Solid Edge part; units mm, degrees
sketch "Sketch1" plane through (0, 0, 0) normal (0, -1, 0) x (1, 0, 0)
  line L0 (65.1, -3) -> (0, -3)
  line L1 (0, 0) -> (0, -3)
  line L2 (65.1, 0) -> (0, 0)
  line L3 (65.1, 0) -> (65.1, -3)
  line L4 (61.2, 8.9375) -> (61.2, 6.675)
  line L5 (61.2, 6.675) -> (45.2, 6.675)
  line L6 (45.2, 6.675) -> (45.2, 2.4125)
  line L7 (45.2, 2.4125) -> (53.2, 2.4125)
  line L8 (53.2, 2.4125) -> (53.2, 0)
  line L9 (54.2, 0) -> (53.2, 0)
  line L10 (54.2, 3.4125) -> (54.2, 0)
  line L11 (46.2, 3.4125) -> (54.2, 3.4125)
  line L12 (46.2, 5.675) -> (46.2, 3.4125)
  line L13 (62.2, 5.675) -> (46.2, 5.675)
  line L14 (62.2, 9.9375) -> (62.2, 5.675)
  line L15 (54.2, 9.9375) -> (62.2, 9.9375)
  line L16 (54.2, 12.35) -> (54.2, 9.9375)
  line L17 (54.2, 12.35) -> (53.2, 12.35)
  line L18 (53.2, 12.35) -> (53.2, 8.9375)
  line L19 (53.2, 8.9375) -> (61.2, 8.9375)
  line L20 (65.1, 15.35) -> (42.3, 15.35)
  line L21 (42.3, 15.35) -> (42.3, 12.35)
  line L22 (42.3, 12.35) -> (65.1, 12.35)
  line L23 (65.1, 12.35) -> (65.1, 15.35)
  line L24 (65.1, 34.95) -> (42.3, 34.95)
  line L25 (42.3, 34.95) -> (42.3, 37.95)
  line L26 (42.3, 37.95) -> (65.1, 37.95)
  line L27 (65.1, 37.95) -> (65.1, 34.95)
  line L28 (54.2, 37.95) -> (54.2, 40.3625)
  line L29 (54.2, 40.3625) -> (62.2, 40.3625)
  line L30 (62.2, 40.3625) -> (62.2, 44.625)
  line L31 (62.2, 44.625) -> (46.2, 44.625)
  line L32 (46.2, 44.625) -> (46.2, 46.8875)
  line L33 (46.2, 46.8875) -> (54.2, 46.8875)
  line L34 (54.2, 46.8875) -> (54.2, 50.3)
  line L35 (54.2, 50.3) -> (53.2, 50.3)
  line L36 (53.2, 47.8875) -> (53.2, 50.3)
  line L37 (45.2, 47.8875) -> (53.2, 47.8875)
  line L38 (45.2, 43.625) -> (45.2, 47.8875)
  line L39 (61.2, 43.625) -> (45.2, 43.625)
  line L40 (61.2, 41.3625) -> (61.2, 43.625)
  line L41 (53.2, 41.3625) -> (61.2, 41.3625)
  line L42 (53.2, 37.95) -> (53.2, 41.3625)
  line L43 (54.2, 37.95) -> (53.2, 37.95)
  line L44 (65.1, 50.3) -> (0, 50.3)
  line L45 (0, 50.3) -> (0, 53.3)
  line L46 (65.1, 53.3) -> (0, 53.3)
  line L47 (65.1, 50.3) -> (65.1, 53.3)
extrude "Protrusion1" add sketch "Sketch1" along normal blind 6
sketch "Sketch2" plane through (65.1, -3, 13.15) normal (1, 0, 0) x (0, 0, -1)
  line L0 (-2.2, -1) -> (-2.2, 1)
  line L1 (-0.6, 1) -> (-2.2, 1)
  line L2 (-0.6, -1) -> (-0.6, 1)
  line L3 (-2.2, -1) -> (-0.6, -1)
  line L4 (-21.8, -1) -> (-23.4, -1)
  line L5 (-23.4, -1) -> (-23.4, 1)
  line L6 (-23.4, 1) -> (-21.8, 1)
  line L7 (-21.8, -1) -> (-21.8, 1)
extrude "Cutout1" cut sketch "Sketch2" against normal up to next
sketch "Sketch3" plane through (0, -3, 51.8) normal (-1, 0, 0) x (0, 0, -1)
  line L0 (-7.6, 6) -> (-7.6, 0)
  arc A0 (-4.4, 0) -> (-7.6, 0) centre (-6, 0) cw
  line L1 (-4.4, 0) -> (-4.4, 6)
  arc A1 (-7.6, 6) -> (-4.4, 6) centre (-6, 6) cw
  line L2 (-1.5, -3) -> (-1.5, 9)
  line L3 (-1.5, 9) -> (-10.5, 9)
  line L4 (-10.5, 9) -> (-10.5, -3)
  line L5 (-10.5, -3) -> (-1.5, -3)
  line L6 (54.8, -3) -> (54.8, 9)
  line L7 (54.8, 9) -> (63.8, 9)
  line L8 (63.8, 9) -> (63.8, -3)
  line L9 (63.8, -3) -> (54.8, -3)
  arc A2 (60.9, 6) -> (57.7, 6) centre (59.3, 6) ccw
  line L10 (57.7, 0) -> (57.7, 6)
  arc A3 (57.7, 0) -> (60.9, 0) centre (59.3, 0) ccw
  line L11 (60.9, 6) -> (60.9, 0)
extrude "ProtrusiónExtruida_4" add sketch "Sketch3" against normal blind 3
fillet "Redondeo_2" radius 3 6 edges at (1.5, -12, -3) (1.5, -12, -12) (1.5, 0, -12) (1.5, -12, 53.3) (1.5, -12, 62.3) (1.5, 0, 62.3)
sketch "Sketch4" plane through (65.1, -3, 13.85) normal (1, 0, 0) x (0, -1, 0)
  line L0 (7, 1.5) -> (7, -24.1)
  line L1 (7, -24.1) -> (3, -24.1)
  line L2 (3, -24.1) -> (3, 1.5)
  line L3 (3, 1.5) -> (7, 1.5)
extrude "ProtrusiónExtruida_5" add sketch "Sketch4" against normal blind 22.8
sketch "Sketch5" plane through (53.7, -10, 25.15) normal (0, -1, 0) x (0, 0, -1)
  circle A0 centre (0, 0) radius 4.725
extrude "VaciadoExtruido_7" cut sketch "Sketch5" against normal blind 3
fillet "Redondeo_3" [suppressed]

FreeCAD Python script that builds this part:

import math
import FreeCAD as App
import Part
import Sketcher


def edges_at(feature, points):
    """Names of the edges that pass closest to the given points."""
    edges = feature.Shape.Edges
    near = lambda p: min(range(len(edges)), key=lambda i: edges[i].distToShape(Part.Vertex(*p))[0])
    return sorted({f"Edge{near(p) + 1}" for p in points})

doc = App.newDocument("Part")
params = doc.addObject("Spreadsheet::Sheet", "Params")
for row, (alias, value) in enumerate([
    ("sketch1_width", "8 mm"),
    ("sketch1_height", "3 mm"),
    ("sketch1_width2", "65.1 mm"),
    ("sketch1_width3", "10.9 mm"),
    ("sketch1_width4", "22.8 mm"),
    ("pad1_length", "6 mm"),
    ("sketch2_width", "2 mm"),
    ("sketch2_height", "1.6 mm"),
    ("pocket1_length", "22.8 mm"),
    ("sketch3_radius", "1.6 mm"),
    ("sketch3_width", "12 mm"),
    ("sketch3_width2", "6 mm"),
    ("sketch3_height", "9 mm"),
    ("pad2_length", "3 mm"),
    ("fillet_radius", "3 mm"),
    ("sketch4_width", "4 mm"),
    ("sketch4_height", "25.6 mm"),
    ("pad3_length", "22.8 mm"),
    ("sketch5_diameter", "9.45 mm"),
    ("pocket2_length", "3 mm"),
], start=1):
    params.set(f"A{row}", alias)
    params.set(f"B{row}", "=" + value)
    params.setAlias(f"B{row}", alias)

body = doc.addObject("PartDesign::Body", "Body")
body.AllowCompound = True

# Sketch on XZ plane
sketch1 = body.newObject("Sketcher::SketchObject", "Sketch")
sketch1.AttachmentSupport = (doc.getObject("XZ_Plane"), [""])
sketch1.MapMode = "FlatFace"
sketch1.addGeometry([
    Part.LineSegment(App.Vector(0, -3, 0), App.Vector(65.1, -3, 0)),  # 0
    Part.LineSegment(App.Vector(65.1, -3, 0), App.Vector(65.1, 0, 0)),  # 1
    Part.LineSegment(App.Vector(65.1, 0, 0), App.Vector(54.2, 0, 0)),  # 2
    Part.LineSegment(App.Vector(54.2, 0, 0), App.Vector(54.2, 3.4125, 0)),  # 3
    Part.LineSegment(App.Vector(54.2, 3.4125, 0), App.Vector(46.2, 3.4125, 0)),  # 4
    Part.LineSegment(App.Vector(46.2, 3.4125, 0), App.Vector(46.2, 5.675, 0)),  # 5
    Part.LineSegment(App.Vector(46.2, 5.675, 0), App.Vector(62.2, 5.675, 0)),  # 6
    Part.LineSegment(App.Vector(62.2, 5.675, 0), App.Vector(62.2, 9.9375, 0)),  # 7
    Part.LineSegment(App.Vector(62.2, 9.9375, 0), App.Vector(54.2, 9.9375, 0)),  # 8
    Part.LineSegment(App.Vector(54.2, 9.9375, 0), App.Vector(54.2, 12.35, 0)),  # 9
    Part.LineSegment(App.Vector(54.2, 12.35, 0), App.Vector(65.1, 12.35, 0)),  # 10
    Part.LineSegment(App.Vector(65.1, 12.35, 0), App.Vector(65.1, 15.35, 0)),  # 11
    Part.LineSegment(App.Vector(65.1, 15.35, 0), App.Vector(42.3, 15.35, 0)),  # 12
    Part.LineSegment(App.Vector(42.3, 15.35, 0), App.Vector(42.3, 12.35, 0)),  # 13
    Part.LineSegment(App.Vector(42.3, 12.35, 0), App.Vector(53.2, 12.35, 0)),  # 14
    Part.LineSegment(App.Vector(53.2, 12.35, 0), App.Vector(53.2, 8.9375, 0)),  # 15
    Part.LineSegment(App.Vector(53.2, 8.9375, 0), App.Vector(61.2, 8.9375, 0)),  # 16
    Part.LineSegment(App.Vector(61.2, 8.9375, 0), App.Vector(61.2, 6.675, 0)),  # 17
    Part.LineSegment(App.Vector(61.2, 6.675, 0), App.Vector(45.2, 6.675, 0)),  # 18
    Part.LineSegment(App.Vector(45.2, 6.675, 0), App.Vector(45.2, 2.4125, 0)),  # 19
    Part.LineSegment(App.Vector(45.2, 2.4125, 0), App.Vector(53.2, 2.4125, 0)),  # 20
    Part.LineSegment(App.Vector(53.2, 2.4125, 0), App.Vector(53.2, 0, 0)),  # 21
    Part.LineSegment(App.Vector(53.2, 0, 0), App.Vector(0, 0, 0)),  # 22
    Part.LineSegment(App.Vector(0, 0, 0), App.Vector(0, -3, 0)),  # 23
    Part.LineSegment(App.Vector(42.3, 34.95, 0), App.Vector(65.1, 34.95, 0)),  # 24
    Part.LineSegment(App.Vector(65.1, 34.95, 0), App.Vector(65.1, 37.95, 0)),  # 25
    Part.LineSegment(App.Vector(65.1, 37.95, 0), App.Vector(54.2, 37.95, 0)),  # 26
    Part.LineSegment(App.Vector(54.2, 37.95, 0), App.Vector(54.2, 40.3625, 0)),  # 27
    Part.LineSegment(App.Vector(54.2, 40.3625, 0), App.Vector(62.2, 40.3625, 0)),  # 28
    Part.LineSegment(App.Vector(62.2, 40.3625, 0), App.Vector(62.2, 44.625, 0)),  # 29
    Part.LineSegment(App.Vector(62.2, 44.625, 0), App.Vector(46.2, 44.625, 0)),  # 30
    Part.LineSegment(App.Vector(46.2, 44.625, 0), App.Vector(46.2, 46.8875, 0)),  # 31
    Part.LineSegment(App.Vector(46.2, 46.8875, 0), App.Vector(54.2, 46.8875, 0)),  # 32
    Part.LineSegment(App.Vector(54.2, 46.8875, 0), App.Vector(54.2, 50.3, 0)),  # 33
    Part.LineSegment(App.Vector(54.2, 50.3, 0), App.Vector(65.1, 50.3, 0)),  # 34
    Part.LineSegment(App.Vector(65.1, 50.3, 0), App.Vector(65.1, 53.3, 0)),  # 35
    Part.LineSegment(App.Vector(65.1, 53.3, 0), App.Vector(0, 53.3, 0)),  # 36
    Part.LineSegment(App.Vector(0, 53.3, 0), App.Vector(0, 50.3, 0)),  # 37
    Part.LineSegment(App.Vector(0, 50.3, 0), App.Vector(53.2, 50.3, 0)),  # 38
    Part.LineSegment(App.Vector(53.2, 50.3, 0), App.Vector(53.2, 47.8875, 0)),  # 39
    Part.LineSegment(App.Vector(53.2, 47.8875, 0), App.Vector(45.2, 47.8875, 0)),  # 40
    Part.LineSegment(App.Vector(45.2, 47.8875, 0), App.Vector(45.2, 43.625, 0)),  # 41
    Part.LineSegment(App.Vector(45.2, 43.625, 0), App.Vector(61.2, 43.625, 0)),  # 42
    Part.LineSegment(App.Vector(61.2, 43.625, 0), App.Vector(61.2, 41.3625, 0)),  # 43
    Part.LineSegment(App.Vector(61.2, 41.3625, 0), App.Vector(53.2, 41.3625, 0)),  # 44
    Part.LineSegment(App.Vector(53.2, 41.3625, 0), App.Vector(53.2, 37.95, 0)),  # 45
    Part.LineSegment(App.Vector(53.2, 37.95, 0), App.Vector(42.3, 37.95, 0)),  # 46
    Part.LineSegment(App.Vector(42.3, 37.95, 0), App.Vector(42.3, 34.95, 0)),  # 47
], False)
sketch1.addConstraint([
    Sketcher.Constraint("Coincident", 0, 2, 1, 1),
    Sketcher.Constraint("Coincident", 1, 2, 2, 1),
    Sketcher.Constraint("Coincident", 2, 2, 3, 1),
    Sketcher.Constraint("Coincident", 3, 2, 4, 1),
    Sketcher.Constraint("Coincident", 4, 2, 5, 1),
    Sketcher.Constraint("Coincident", 5, 2, 6, 1),
    Sketcher.Constraint("Coincident", 6, 2, 7, 1),
    Sketcher.Constraint("Coincident", 7, 2, 8, 1),
    Sketcher.Constraint("Coincident", 8, 2, 9, 1),
    Sketcher.Constraint("Coincident", 9, 2, 10, 1),
    Sketcher.Constraint("Coincident", 10, 2, 11, 1),
    Sketcher.Constraint("Coincident", 11, 2, 12, 1),
    Sketcher.Constraint("Coincident", 12, 2, 13, 1),
    Sketcher.Constraint("Coincident", 13, 2, 14, 1),
    Sketcher.Constraint("Coincident", 14, 2, 15, 1),
    Sketcher.Constraint("Coincident", 15, 2, 16, 1),
    Sketcher.Constraint("Coincident", 16, 2, 17, 1),
    Sketcher.Constraint("Coincident", 17, 2, 18, 1),
    Sketcher.Constraint("Coincident", 18, 2, 19, 1),
    Sketcher.Constraint("Coincident", 19, 2, 20, 1),
    Sketcher.Constraint("Coincident", 20, 2, 21, 1),
    Sketcher.Constraint("Coincident", 21, 2, 22, 1),
    Sketcher.Constraint("Coincident", 22, 2, 23, 1),
    Sketcher.Constraint("Coincident", 23, 2, 0, 1),
    Sketcher.Constraint("Coincident", 24, 2, 25, 1),
    Sketcher.Constraint("Coincident", 25, 2, 26, 1),
    Sketcher.Constraint("Coincident", 26, 2, 27, 1),
    Sketcher.Constraint("Coincident", 27, 2, 28, 1),
    Sketcher.Constraint("Coincident", 28, 2, 29, 1),
    Sketcher.Constraint("Coincident", 29, 2, 30, 1),
    Sketcher.Constraint("Coincident", 30, 2, 31, 1),
    Sketcher.Constraint("Coincident", 31, 2, 32, 1),
    Sketcher.Constraint("Coincident", 32, 2, 33, 1),
    Sketcher.Constraint("Coincident", 33, 2, 34, 1),
    Sketcher.Constraint("Coincident", 34, 2, 35, 1),
    Sketcher.Constraint("Coincident", 35, 2, 36, 1),
    Sketcher.Constraint("Coincident", 36, 2, 37, 1),
    Sketcher.Constraint("Coincident", 37, 2, 38, 1),
    Sketcher.Constraint("Coincident", 38, 2, 39, 1),
    Sketcher.Constraint("Coincident", 39, 2, 40, 1),
    Sketcher.Constraint("Coincident", 40, 2, 41, 1),
    Sketcher.Constraint("Coincident", 41, 2, 42, 1),
    Sketcher.Constraint("Coincident", 42, 2, 43, 1),
    Sketcher.Constraint("Coincident", 43, 2, 44, 1),
    Sketcher.Constraint("Coincident", 44, 2, 45, 1),
    Sketcher.Constraint("Coincident", 45, 2, 46, 1),
    Sketcher.Constraint("Coincident", 46, 2, 47, 1),
    Sketcher.Constraint("Coincident", 47, 2, 24, 1),
    Sketcher.Constraint("Horizontal", 0),
    Sketcher.Constraint("Vertical", 1),
    Sketcher.Constraint("Horizontal", 2),
    Sketcher.Constraint("Vertical", 3),
    Sketcher.Constraint("Horizontal", 4),
    Sketcher.Constraint("Vertical", 5),
    Sketcher.Constraint("Horizontal", 6),
    Sketcher.Constraint("Vertical", 7),
    Sketcher.Constraint("Horizontal", 8),
    Sketcher.Constraint("Vertical", 9),
    Sketcher.Constraint("Horizontal", 10),
    Sketcher.Constraint("Vertical", 11),
    Sketcher.Constraint("Horizontal", 12),
    Sketcher.Constraint("Vertical", 13),
    Sketcher.Constraint("Horizontal", 14),
    Sketcher.Constraint("Vertical", 15),
    Sketcher.Constraint("Horizontal", 16),
    Sketcher.Constraint("Vertical", 17),
    Sketcher.Constraint("Horizontal", 18),
    Sketcher.Constraint("Vertical", 19),
    Sketcher.Constraint("Horizontal", 20),
    Sketcher.Constraint("Vertical", 21),
    Sketcher.Constraint("Horizontal", 22),
    Sketcher.Constraint("Vertical", 23),
    Sketcher.Constraint("Horizontal", 24),
    Sketcher.Constraint("Vertical", 25),
    Sketcher.Constraint("Horizontal", 26),
    Sketcher.Constraint("Vertical", 27),
    Sketcher.Constraint("Horizontal", 28),
    Sketcher.Constraint("Vertical", 29),
    Sketcher.Constraint("Horizontal", 30),
    Sketcher.Constraint("Vertical", 31),
    Sketcher.Constraint("Horizontal", 32),
    Sketcher.Constraint("Vertical", 33),
    Sketcher.Constraint("Horizontal", 34),
    Sketcher.Constraint("Vertical", 35),
    Sketcher.Constraint("Horizontal", 36),
    Sketcher.Constraint("Vertical", 37),
    Sketcher.Constraint("Horizontal", 38),
    Sketcher.Constraint("Vertical", 39),
    Sketcher.Constraint("Horizontal", 40),
    Sketcher.Constraint("Vertical", 41),
    Sketcher.Constraint("Horizontal", 42),
    Sketcher.Constraint("Vertical", 43),
    Sketcher.Constraint("Horizontal", 44),
    Sketcher.Constraint("Vertical", 45),
    Sketcher.Constraint("Horizontal", 46),
    Sketcher.Constraint("Vertical", 47),
    Sketcher.Constraint("Coincident", 22, 2, -1, 1),
    Sketcher.Constraint("PointOnObject", 1, 2, -1),
    Sketcher.Constraint("PointOnObject", 36, 2, -2),
    Sketcher.Constraint("Horizontal", 10, 2, 13, 2),
    Sketcher.Constraint("Horizontal", 34, 2, 37, 2),
    Sketcher.Constraint("Horizontal", 26, 2, 45, 2),
    Sketcher.Constraint("Vertical", 3, 2, 8, 2),
    Sketcher.Constraint("Vertical", 1, 2, 10, 2),
    Sketcher.Constraint("Vertical", 15, 2, 20, 2),
    Sketcher.Constraint("Vertical", 11, 2, 24, 2),
    Sketcher.Constraint("Vertical", 9, 2, 26, 2),
    Sketcher.Constraint("Vertical", 7, 2, 28, 2),
    Sketcher.Constraint("Vertical", 5, 2, 30, 2),
    Sketcher.Constraint("Vertical", 27, 2, 32, 2),
    Sketcher.Constraint("Vertical", 25, 2, 34, 2),
    Sketcher.Constraint("Vertical", 21, 2, 38, 2),
    Sketcher.Constraint("Vertical", 19, 2, 40, 2),
    Sketcher.Constraint("Vertical", 17, 2, 42, 2),
    Sketcher.Constraint("Vertical", 39, 2, 44, 2),
    Sketcher.Constraint("Vertical", 13, 2, 46, 2),
    Sketcher.Constraint("Equal", 4, 8),
    Sketcher.Constraint("Equal", 10, 14),
    Sketcher.Constraint("Equal", 8, 16),
    Sketcher.Constraint("Equal", 6, 18),
    Sketcher.Constraint("Equal", 1, 11),
    Sketcher.Constraint("Equal", 3, 15),
    Sketcher.Constraint("Equal", 5, 17),
    Sketcher.Constraint("Equal", 7, 19),
    Sketcher.Constraint("Equal", 23, 25),
    Sketcher.Constraint("Equal", 21, 27),
    Sketcher.Constraint("Equal", 19, 29),
    Sketcher.Constraint("Equal", 17, 31),
    Sketcher.Constraint("Equal", 15, 33),
    Sketcher.Constraint("Equal", 25, 35),
    Sketcher.Constraint("Equal", 27, 39),
    Sketcher.Constraint("Equal", 29, 41),
    Sketcher.Constraint("Equal", 31, 43),
    Sketcher.Constraint("DistanceX", 4, 2, 4, 1, 8.0),
    Sketcher.Constraint("DistanceY", 1, 1, 1, 2, 3.0),
    Sketcher.Constraint("DistanceX", 0, 1, 0, 2, 65.1),
    Sketcher.Constraint("DistanceX", 2, 2, 2, 1, 10.9),
    Sketcher.Constraint("DistanceX", 12, 2, 12, 1, 22.8),
    Sketcher.Constraint("DistanceY", 15, 2, 8, 2, 1.0),
    Sketcher.Constraint("DistanceY", 6, 2, 17, 2, 1.0),
    Sketcher.Constraint("DistanceY", -1, 1, 33, 2, 50.3),
    Sketcher.Constraint("DistanceY", 11, 2, 24, 2, 19.6),
    Sketcher.Constraint("DistanceY", 3, 1, 3, 2, 3.4125),
])
sketch1.setExpression("Constraints[133]", "Params.sketch1_width")
sketch1.setExpression("Constraints[134]", "Params.sketch1_height")
sketch1.setExpression("Constraints[135]", "Params.sketch1_width2")
sketch1.setExpression("Constraints[136]", "Params.sketch1_width3")
sketch1.setExpression("Constraints[137]", "Params.sketch1_width4")
pad1 = body.newObject("PartDesign::Pad", "Pad")
pad1.Profile = sketch1
pad1.setExpression("Length", "Params.pad1_length")

# Sketch on YZ plane
sketch2 = body.newObject("Sketcher::SketchObject", "Sketch001")
sketch2.AttachmentSupport = (doc.getObject("YZ_Plane"), [""])
sketch2.MapMode = "FlatFace"
sketch2.AttachmentOffset = App.Placement(App.Vector(0, 0, 65.1), App.Rotation())
sketch2.addGeometry([
    Part.LineSegment(App.Vector(-2, 15.35, 0), App.Vector(-4, 15.35, 0)),  # 0
    Part.LineSegment(App.Vector(-4, 15.35, 0), App.Vector(-4, 13.75, 0)),  # 1
    Part.LineSegment(App.Vector(-4, 13.75, 0), App.Vector(-2, 13.75, 0)),  # 2
    Part.LineSegment(App.Vector(-2, 13.75, 0), App.Vector(-2, 15.35, 0)),  # 3
    Part.LineSegment(App.Vector(-4, 36.55, 0), App.Vector(-4, 34.95, 0)),  # 4
    Part.LineSegment(App.Vector(-4, 34.95, 0), App.Vector(-2, 34.95, 0)),  # 5
    Part.LineSegment(App.Vector(-2, 34.95, 0), App.Vector(-2, 36.55, 0)),  # 6
    Part.LineSegment(App.Vector(-2, 36.55, 0), App.Vector(-4, 36.55, 0)),  # 7
], False)
sketch2.addConstraint([
    Sketcher.Constraint("Coincident", 0, 2, 1, 1),
    Sketcher.Constraint("Coincident", 1, 2, 2, 1),
    Sketcher.Constraint("Coincident", 2, 2, 3, 1),
    Sketcher.Constraint("Coincident", 3, 2, 0, 1),
    Sketcher.Constraint("Coincident", 4, 2, 5, 1),
    Sketcher.Constraint("Coincident", 5, 2, 6, 1),
    Sketcher.Constraint("Coincident", 6, 2, 7, 1),
    Sketcher.Constraint("Coincident", 7, 2, 4, 1),
    Sketcher.Constraint("Horizontal", 0),
    Sketcher.Constraint("Vertical", 1),
    Sketcher.Constraint("Horizontal", 2),
    Sketcher.Constraint("Vertical", 3),
    Sketcher.Constraint("Vertical", 4),
    Sketcher.Constraint("Horizontal", 5),
    Sketcher.Constraint("Vertical", 6),
    Sketcher.Constraint("Horizontal", 7),
    Sketcher.Constraint("Vertical", 1, 2, 4, 2),
    Sketcher.Constraint("Vertical", 3, 2, 5, 2),
    Sketcher.Constraint("Equal", 3, 4),
    Sketcher.Constraint("DistanceX", 0, 2, 0, 1, 2.0),
    Sketcher.Constraint("DistanceY", 1, 2, 1, 1, 1.6),
    Sketcher.Constraint("DistanceX", 0, 2, -1, 1, 4.0),
    Sketcher.Constraint("DistanceY", 0, 2, 4, 2, 19.6),
    Sketcher.Constraint("DistanceY", -1, 1, 0, 2, 15.35),
])
sketch2.setExpression("Constraints[19]", "Params.sketch2_width")
sketch2.setExpression("Constraints[20]", "Params.sketch2_height")
pocket1 = body.newObject("PartDesign::Pocket", "Pocket")
pocket1.Profile = sketch2
pocket1.setExpression("Length", "Params.pocket1_length")

# Sketch on YZ plane
sketch3 = body.newObject("Sketcher::SketchObject", "Sketch002")
sketch3.AttachmentSupport = (doc.getObject("YZ_Plane"), [""])
sketch3.MapMode = "FlatFace"
sketch3.addGeometry([
    Part.LineSegment(App.Vector(0, 62.3, 0), App.Vector(0, 53.3, 0)),  # 0
    Part.LineSegment(App.Vector(0, 53.3, 0), App.Vector(-12, 53.3, 0)),  # 1
    Part.LineSegment(App.Vector(-12, 53.3, 0), App.Vector(-12, 62.3, 0)),  # 2
    Part.LineSegment(App.Vector(-12, 62.3, 0), App.Vector(0, 62.3, 0)),  # 3
    Part.LineSegment(App.Vector(-3, 59.4, 0), App.Vector(-9, 59.4, 0)),  # 4
    Part.ArcOfCircle(Part.Circle(App.Vector(-9, 57.8, 0), App.Vector(0, 0, 1), 1.6), math.radians(90), math.radians(270)),  # 5
    Part.LineSegment(App.Vector(-9, 56.2, 0), App.Vector(-3, 56.2, 0)),  # 6
    Part.ArcOfCircle(Part.Circle(App.Vector(-3, 57.8, 0), App.Vector(0, 0, 1), 1.6), math.radians(-90), math.radians(90)),  # 7
    Part.LineSegment(App.Vector(-12, -3, 0), App.Vector(0, -3, 0)),  # 8
    Part.LineSegment(App.Vector(0, -3, 0), App.Vector(0, -12, 0)),  # 9
    Part.LineSegment(App.Vector(0, -12, 0), App.Vector(-12, -12, 0)),  # 10
    Part.LineSegment(App.Vector(-12, -12, 0), App.Vector(-12, -3, 0)),  # 11
    Part.ArcOfCircle(Part.Circle(App.Vector(-9, -7.5, 0), App.Vector(0, 0, 1), 1.6), math.radians(90), math.radians(270)),  # 12
    Part.LineSegment(App.Vector(-9, -9.1, 0), App.Vector(-3, -9.1, 0)),  # 13
    Part.ArcOfCircle(Part.Circle(App.Vector(-3, -7.5, 0), App.Vector(0, 0, 1), 1.6), math.radians(-90), math.radians(90)),  # 14
    Part.LineSegment(App.Vector(-3, -5.9, 0), App.Vector(-9, -5.9, 0)),  # 15
], False)
sketch3.addConstraint([
    Sketcher.Constraint("Coincident", 0, 2, 1, 1),
    Sketcher.Constraint("Coincident", 1, 2, 2, 1),
    Sketcher.Constraint("Coincident", 2, 2, 3, 1),
    Sketcher.Constraint("Coincident", 3, 2, 0, 1),
    Sketcher.Constraint("Tangent", 4, 2, 5, 1),
    Sketcher.Constraint("Tangent", 5, 2, 6, 1),
    Sketcher.Constraint("Tangent", 6, 2, 7, 1),
    Sketcher.Constraint("Tangent", 7, 2, 4, 1),
    Sketcher.Constraint("Coincident", 8, 2, 9, 1),
    Sketcher.Constraint("Coincident", 9, 2, 10, 1),
    Sketcher.Constraint("Coincident", 10, 2, 11, 1),
    Sketcher.Constraint("Coincident", 11, 2, 8, 1),
    Sketcher.Constraint("Tangent", 12, 2, 13, 1),
    Sketcher.Constraint("Tangent", 13, 2, 14, 1),
    Sketcher.Constraint("Tangent", 14, 2, 15, 1),
    Sketcher.Constraint("Tangent", 15, 2, 12, 1),
    Sketcher.Constraint("Vertical", 0),
    Sketcher.Constraint("Horizontal", 1),
    Sketcher.Constraint("Vertical", 2),
    Sketcher.Constraint("Horizontal", 3),
    Sketcher.Constraint("Horizontal", 4),
    Sketcher.Constraint("Horizontal", 6),
    Sketcher.Constraint("Horizontal", 8),
    Sketcher.Constraint("Vertical", 9),
    Sketcher.Constraint("Horizontal", 10),
    Sketcher.Constraint("Vertical", 11),
    Sketcher.Constraint("Horizontal", 13),
    Sketcher.Constraint("Horizontal", 15),
    Sketcher.Constraint("Equal", 7, 12),
    Sketcher.Constraint("PointOnObject", 0, 2, -2),
    Sketcher.Constraint("PointOnObject", 8, 2, -2),
    Sketcher.Constraint("Vertical", 5, 3, 12, 3),
    Sketcher.Constraint("Vertical", 7, 3, 14, 3),
    Sketcher.Constraint("Vertical", 2, 2, 10, 2),
    Sketcher.Constraint("Equal", 2, 9),
    Sketcher.Constraint("Radius", 5, 1.6),
    Sketcher.Constraint("DistanceX", 1, 2, 1, 1, 12.0),
    Sketcher.Constraint("DistanceX", 4, 2, 4, 1, 6.0),
    Sketcher.Constraint("DistanceY", 0, 2, 0, 1, 9.0),
    Sketcher.Constraint("DistanceX", 5, 3, -1, 1, 9.0),
    Sketcher.Constraint("DistanceY", 8, 2, -1, 1, 3.0),
    Sketcher.Constraint("DistanceY", -1, 1, 5, 3, 57.8),
    Sketcher.Constraint("DistanceY", 12, 3, -1, 1, 7.5),
    Sketcher.Constraint("DistanceY", -1, 1, 0, 2, 53.3),
])
sketch3.setExpression("Constraints[35]", "Params.sketch3_radius")
sketch3.setExpression("Constraints[36]", "Params.sketch3_width")
sketch3.setExpression("Constraints[37]", "Params.sketch3_width2")
sketch3.setExpression("Constraints[38]", "Params.sketch3_height")
pad2 = body.newObject("PartDesign::Pad", "Pad001")
pad2.Profile = sketch3
pad2.setExpression("Length", "Params.pad2_length")
doc.recompute()

fillet = body.newObject("PartDesign::Fillet", "Fillet")
fillet.Base = (pad2, edges_at(pad2, [
    (1.5, -12, -3),
    (1.5, -12, -12),
    (1.5, 0, -12),
    (1.5, -12, 53.3),
    (1.5, -12, 62.3),
    (1.5, 0, 62.3),
]))
fillet.setExpression("Radius", "Params.fillet_radius")

# Sketch on YZ plane
sketch4 = body.newObject("Sketcher::SketchObject", "Sketch003")
sketch4.AttachmentSupport = (doc.getObject("YZ_Plane"), [""])
sketch4.MapMode = "FlatFace"
sketch4.AttachmentOffset = App.Placement(App.Vector(0, 0, 65.1), App.Rotation())
sketch4.addGeometry([
    Part.LineSegment(App.Vector(-10, 37.95, 0), App.Vector(-10, 12.35, 0)),
    Part.LineSegment(App.Vector(-10, 12.35, 0), App.Vector(-6, 12.35, 0)),
    Part.LineSegment(App.Vector(-6, 12.35, 0), App.Vector(-6, 37.95, 0)),
    Part.LineSegment(App.Vector(-6, 37.95, 0), App.Vector(-10, 37.95, 0)),
], False)
sketch4.addConstraint([
    Sketcher.Constraint("Coincident", 0, 2, 1, 1),
    Sketcher.Constraint("Coincident", 1, 2, 2, 1),
    Sketcher.Constraint("Coincident", 2, 2, 3, 1),
    Sketcher.Constraint("Coincident", 3, 2, 0, 1),
    Sketcher.Constraint("Vertical", 0),
    Sketcher.Constraint("Horizontal", 1),
    Sketcher.Constraint("Vertical", 2),
    Sketcher.Constraint("Horizontal", 3),
    Sketcher.Constraint("DistanceX", 1, 1, 1, 2, 4.0),
    Sketcher.Constraint("DistanceY", 0, 2, 0, 1, 25.6),
    Sketcher.Constraint("DistanceX", 0, 2, -1, 1, 10.0),
    Sketcher.Constraint("DistanceY", -1, 1, 0, 2, 12.35),
])
sketch4.setExpression("Constraints[8]", "Params.sketch4_width")
sketch4.setExpression("Constraints[9]", "Params.sketch4_height")
pad3 = body.newObject("PartDesign::Pad", "Pad002")
pad3.Profile = sketch4
pad3.setExpression("Length", "Params.pad3_length")
pad3.Reversed = True

# Sketch on XZ plane
sketch5 = body.newObject("Sketcher::SketchObject", "Sketch004")
sketch5.AttachmentSupport = (doc.getObject("XZ_Plane"), [""])
sketch5.MapMode = "FlatFace"
sketch5.AttachmentOffset = App.Placement(App.Vector(0, 0, 10), App.Rotation())
sketch5.addGeometry(Part.Circle(App.Vector(53.7, 25.15, 0), App.Vector(0, 0, 1), 4.725), False)
sketch5.addConstraint([
    Sketcher.Constraint("Diameter", 0, 9.45),
    Sketcher.Constraint("DistanceX", -1, 1, 0, 3, 53.7),
    Sketcher.Constraint("DistanceY", -1, 1, 0, 3, 25.15),
])
sketch5.setExpression("Constraints[0]", "Params.sketch5_diameter")
pocket2 = body.newObject("PartDesign::Pocket", "Pocket001")
pocket2.Profile = sketch5
pocket2.setExpression("Length", "Params.pocket2_length")

doc.recompute()
